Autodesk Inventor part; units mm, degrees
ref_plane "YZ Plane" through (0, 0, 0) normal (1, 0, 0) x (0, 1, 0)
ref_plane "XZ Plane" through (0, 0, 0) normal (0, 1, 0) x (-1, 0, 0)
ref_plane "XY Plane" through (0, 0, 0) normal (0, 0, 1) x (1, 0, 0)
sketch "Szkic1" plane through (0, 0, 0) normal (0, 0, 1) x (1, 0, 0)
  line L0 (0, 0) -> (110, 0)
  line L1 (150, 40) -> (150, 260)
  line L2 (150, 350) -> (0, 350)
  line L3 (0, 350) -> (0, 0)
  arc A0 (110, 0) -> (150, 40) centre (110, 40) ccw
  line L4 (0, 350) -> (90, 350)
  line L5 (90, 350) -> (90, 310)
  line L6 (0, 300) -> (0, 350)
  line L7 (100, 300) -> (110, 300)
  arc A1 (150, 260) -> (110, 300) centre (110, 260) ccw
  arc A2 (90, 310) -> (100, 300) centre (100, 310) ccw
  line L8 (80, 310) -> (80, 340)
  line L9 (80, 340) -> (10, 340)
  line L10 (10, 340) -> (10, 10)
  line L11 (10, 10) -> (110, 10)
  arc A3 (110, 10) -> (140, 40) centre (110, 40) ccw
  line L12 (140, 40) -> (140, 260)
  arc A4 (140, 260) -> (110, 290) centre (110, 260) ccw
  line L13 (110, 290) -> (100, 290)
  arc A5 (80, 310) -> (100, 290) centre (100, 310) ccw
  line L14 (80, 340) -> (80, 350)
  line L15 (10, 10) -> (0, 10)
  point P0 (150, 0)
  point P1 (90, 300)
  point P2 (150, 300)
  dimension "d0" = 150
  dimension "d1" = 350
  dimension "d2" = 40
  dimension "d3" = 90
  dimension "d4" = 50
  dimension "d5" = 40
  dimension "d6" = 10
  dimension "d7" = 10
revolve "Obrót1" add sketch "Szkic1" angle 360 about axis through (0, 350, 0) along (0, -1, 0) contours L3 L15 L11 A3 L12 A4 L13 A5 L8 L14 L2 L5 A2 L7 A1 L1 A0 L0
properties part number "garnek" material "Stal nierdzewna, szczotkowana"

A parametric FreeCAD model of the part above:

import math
import FreeCAD as App
import Part
import Sketcher
from FreeCAD import Vector

doc = App.newDocument("Part")
body = doc.addObject("PartDesign::Body", "Body")

# Sketch on XY plane
sketch1 = body.newObject("Sketcher::SketchObject", "Sketch")
sketch1.AttachmentSupport = (doc.getObject("XY_Plane"), [""])
sketch1.MapMode = "FlatFace"
sketch1.addGeometry(Part.LineSegment(Vector(0, 10, 0), Vector(0, 0, 0)), False)
sketch1.addGeometry(Part.LineSegment(Vector(0, 0, 0), Vector(110, 0, 0)), False)
sketch1.addGeometry(Part.ArcOfCircle(Part.Circle(Vector(110, 40, 0), Vector(0, 0, 1), 40), math.radians(-90), math.radians(0)), False)
sketch1.addGeometry(Part.LineSegment(Vector(150, 40, 0), Vector(150, 260, 0)), False)
sketch1.addGeometry(Part.ArcOfCircle(Part.Circle(Vector(110, 260, 0), Vector(0, 0, 1), 40), math.radians(0), math.radians(90)), False)
sketch1.addGeometry(Part.LineSegment(Vector(110, 300, 0), Vector(100, 300, 0)), False)
sketch1.addGeometry(Part.ArcOfCircle(Part.Circle(Vector(100, 310, 0), Vector(0, 0, 1), 10), math.radians(180), math.radians(270)), False)
sketch1.addGeometry(Part.LineSegment(Vector(90, 310, 0), Vector(90, 350, 0)), False)
sketch1.addGeometry(Part.LineSegment(Vector(90, 350, 0), Vector(80, 350, 0)), False)
sketch1.addGeometry(Part.LineSegment(Vector(80, 350, 0), Vector(80, 310, 0)), False)
sketch1.addGeometry(Part.ArcOfCircle(Part.Circle(Vector(100, 310, 0), Vector(0, 0, 1), 20), math.radians(180), math.radians(270)), False)
sketch1.addGeometry(Part.LineSegment(Vector(100, 290, 0), Vector(110, 290, 0)), False)
sketch1.addGeometry(Part.ArcOfCircle(Part.Circle(Vector(110, 260, 0), Vector(0, 0, 1), 30), math.radians(0), math.radians(90)), False)
sketch1.addGeometry(Part.LineSegment(Vector(140, 260, 0), Vector(140, 40, 0)), False)
sketch1.addGeometry(Part.ArcOfCircle(Part.Circle(Vector(110, 40, 0), Vector(0, 0, 1), 30), math.radians(-90), math.radians(0)), False)
sketch1.addGeometry(Part.LineSegment(Vector(110, 10, 0), Vector(0, 10, 0)), False)
sketch1.addConstraint(Sketcher.Constraint("Coincident", 0, 2, 1, 1))
sketch1.addConstraint(Sketcher.Constraint("Tangent", 1, 2, 2, 1))
sketch1.addConstraint(Sketcher.Constraint("Tangent", 2, 2, 3, 1))
sketch1.addConstraint(Sketcher.Constraint("Tangent", 3, 2, 4, 1))
sketch1.addConstraint(Sketcher.Constraint("Tangent", 4, 2, 5, 1))
sketch1.addConstraint(Sketcher.Constraint("Tangent", 5, 2, 6, 2))
sketch1.addConstraint(Sketcher.Constraint("Tangent", 6, 1, 7, 1))
sketch1.addConstraint(Sketcher.Constraint("Coincident", 7, 2, 8, 1))
sketch1.addConstraint(Sketcher.Constraint("Coincident", 8, 2, 9, 1))
sketch1.addConstraint(Sketcher.Constraint("Tangent", 9, 2, 10, 1))
sketch1.addConstraint(Sketcher.Constraint("Tangent", 10, 2, 11, 1))
sketch1.addConstraint(Sketcher.Constraint("Tangent", 11, 2, 12, 2))
sketch1.addConstraint(Sketcher.Constraint("Tangent", 12, 1, 13, 1))
sketch1.addConstraint(Sketcher.Constraint("Tangent", 13, 2, 14, 2))
sketch1.addConstraint(Sketcher.Constraint("Tangent", 14, 1, 15, 1))
sketch1.addConstraint(Sketcher.Constraint("Coincident", 15, 2, 0, 1))
sketch1.addConstraint(Sketcher.Constraint("Vertical", 0))
sketch1.addConstraint(Sketcher.Constraint("Horizontal", 1))
sketch1.addConstraint(Sketcher.Constraint("Vertical", 3))
sketch1.addConstraint(Sketcher.Constraint("Horizontal", 5))
sketch1.addConstraint(Sketcher.Constraint("Vertical", 7))
sketch1.addConstraint(Sketcher.Constraint("Horizontal", 8))
sketch1.addConstraint(Sketcher.Constraint("Vertical", 9))
sketch1.addConstraint(Sketcher.Constraint("Horizontal", 11))
sketch1.addConstraint(Sketcher.Constraint("Vertical", 13))
sketch1.addConstraint(Sketcher.Constraint("Horizontal", 15))
sketch1.addConstraint(Sketcher.Constraint("Coincident", 0, 2, -1, 1))
sketch1.addConstraint(Sketcher.Constraint("Coincident", 10, 3, 6, 3))
sketch1.addConstraint(Sketcher.Constraint("Coincident", 12, 3, 4, 3))
sketch1.addConstraint(Sketcher.Constraint("Coincident", 14, 3, 2, 3))
sketch1.addConstraint(Sketcher.Constraint("Equal", 2, 4))
sketch1.addConstraint(Sketcher.Constraint("Equal", 5, 8))
sketch1.addConstraint(Sketcher.Constraint("Radius", 2, 40.0))
sketch1.addConstraint(Sketcher.Constraint("Radius", 6, 10.0))
sketch1.addConstraint(Sketcher.Constraint("Radius", 10, 20.0))
sketch1.addConstraint(Sketcher.Constraint("DistanceY", 7, 1, 7, 2, 40.0))
sketch1.addConstraint(Sketcher.Constraint("DistanceX", -1, 1, 2, 2, 150.0))
sketch1.addConstraint(Sketcher.Constraint("DistanceY", -1, 1, 7, 2, 350.0))
revolution = body.newObject("PartDesign::Revolution", "Revolution")
revolution.Profile = sketch1
revolution.ReferenceAxis = (sketch1, ["V_Axis"])
revolution.Angle = 360

doc.recompute()
